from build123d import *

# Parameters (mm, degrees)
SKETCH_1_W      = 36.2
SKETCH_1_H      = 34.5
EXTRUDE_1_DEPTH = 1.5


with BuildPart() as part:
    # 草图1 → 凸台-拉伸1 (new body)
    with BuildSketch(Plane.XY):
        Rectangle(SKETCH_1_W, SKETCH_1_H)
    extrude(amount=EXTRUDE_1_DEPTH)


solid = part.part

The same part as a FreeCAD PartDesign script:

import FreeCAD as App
import Part
import Sketcher
from FreeCAD import Vector

doc = App.newDocument("Part")
body = doc.addObject("PartDesign::Body", "Body")

sketch1 = body.newObject("Sketcher::SketchObject", "Sketch")
sketch1.AttachmentSupport = (doc.getObject("XY_Plane"), [""])
sketch1.MapMode = "FlatFace"
sketch1.addGeometry(Part.LineSegment(Vector(-18, 17, 0), Vector(-18, -17, 0)), False)
sketch1.addGeometry(Part.LineSegment(Vector(-18, -17, 0), Vector(18, -17, 0)), False)
sketch1.addGeometry(Part.LineSegment(Vector(18, -17, 0), Vector(18, 17, 0)), False)
sketch1.addGeometry(Part.LineSegment(Vector(18, 17, 0), Vector(-18, 17, 0)), False)
sketch1.addConstraint(Sketcher.Constraint("Coincident", 0, 2, 1, 1))
sketch1.addConstraint(Sketcher.Constraint("Coincident", 1, 2, 2, 1))
sketch1.addConstraint(Sketcher.Constraint("Coincident", 2, 2, 3, 1))
sketch1.addConstraint(Sketcher.Constraint("Coincident", 3, 2, 0, 1))
sketch1.addConstraint(Sketcher.Constraint("Vertical", 0))
sketch1.addConstraint(Sketcher.Constraint("Horizontal", 1))
sketch1.addConstraint(Sketcher.Constraint("Vertical", 2))
sketch1.addConstraint(Sketcher.Constraint("Horizontal", 3))
sketch1.addConstraint(Sketcher.Constraint("Symmetric", 0, 2, 2, 2, -1, 1))
sketch1.addConstraint(Sketcher.Constraint("DistanceX", 1, 1, 1, 2, 36.2))
sketch1.addConstraint(Sketcher.Constraint("DistanceY", 0, 2, 0, 1, 34.5))
pad1 = body.newObject("PartDesign::Pad", "Pad")
pad1.Profile = sketch1
pad1.Length = 1.5

doc.recompute()
